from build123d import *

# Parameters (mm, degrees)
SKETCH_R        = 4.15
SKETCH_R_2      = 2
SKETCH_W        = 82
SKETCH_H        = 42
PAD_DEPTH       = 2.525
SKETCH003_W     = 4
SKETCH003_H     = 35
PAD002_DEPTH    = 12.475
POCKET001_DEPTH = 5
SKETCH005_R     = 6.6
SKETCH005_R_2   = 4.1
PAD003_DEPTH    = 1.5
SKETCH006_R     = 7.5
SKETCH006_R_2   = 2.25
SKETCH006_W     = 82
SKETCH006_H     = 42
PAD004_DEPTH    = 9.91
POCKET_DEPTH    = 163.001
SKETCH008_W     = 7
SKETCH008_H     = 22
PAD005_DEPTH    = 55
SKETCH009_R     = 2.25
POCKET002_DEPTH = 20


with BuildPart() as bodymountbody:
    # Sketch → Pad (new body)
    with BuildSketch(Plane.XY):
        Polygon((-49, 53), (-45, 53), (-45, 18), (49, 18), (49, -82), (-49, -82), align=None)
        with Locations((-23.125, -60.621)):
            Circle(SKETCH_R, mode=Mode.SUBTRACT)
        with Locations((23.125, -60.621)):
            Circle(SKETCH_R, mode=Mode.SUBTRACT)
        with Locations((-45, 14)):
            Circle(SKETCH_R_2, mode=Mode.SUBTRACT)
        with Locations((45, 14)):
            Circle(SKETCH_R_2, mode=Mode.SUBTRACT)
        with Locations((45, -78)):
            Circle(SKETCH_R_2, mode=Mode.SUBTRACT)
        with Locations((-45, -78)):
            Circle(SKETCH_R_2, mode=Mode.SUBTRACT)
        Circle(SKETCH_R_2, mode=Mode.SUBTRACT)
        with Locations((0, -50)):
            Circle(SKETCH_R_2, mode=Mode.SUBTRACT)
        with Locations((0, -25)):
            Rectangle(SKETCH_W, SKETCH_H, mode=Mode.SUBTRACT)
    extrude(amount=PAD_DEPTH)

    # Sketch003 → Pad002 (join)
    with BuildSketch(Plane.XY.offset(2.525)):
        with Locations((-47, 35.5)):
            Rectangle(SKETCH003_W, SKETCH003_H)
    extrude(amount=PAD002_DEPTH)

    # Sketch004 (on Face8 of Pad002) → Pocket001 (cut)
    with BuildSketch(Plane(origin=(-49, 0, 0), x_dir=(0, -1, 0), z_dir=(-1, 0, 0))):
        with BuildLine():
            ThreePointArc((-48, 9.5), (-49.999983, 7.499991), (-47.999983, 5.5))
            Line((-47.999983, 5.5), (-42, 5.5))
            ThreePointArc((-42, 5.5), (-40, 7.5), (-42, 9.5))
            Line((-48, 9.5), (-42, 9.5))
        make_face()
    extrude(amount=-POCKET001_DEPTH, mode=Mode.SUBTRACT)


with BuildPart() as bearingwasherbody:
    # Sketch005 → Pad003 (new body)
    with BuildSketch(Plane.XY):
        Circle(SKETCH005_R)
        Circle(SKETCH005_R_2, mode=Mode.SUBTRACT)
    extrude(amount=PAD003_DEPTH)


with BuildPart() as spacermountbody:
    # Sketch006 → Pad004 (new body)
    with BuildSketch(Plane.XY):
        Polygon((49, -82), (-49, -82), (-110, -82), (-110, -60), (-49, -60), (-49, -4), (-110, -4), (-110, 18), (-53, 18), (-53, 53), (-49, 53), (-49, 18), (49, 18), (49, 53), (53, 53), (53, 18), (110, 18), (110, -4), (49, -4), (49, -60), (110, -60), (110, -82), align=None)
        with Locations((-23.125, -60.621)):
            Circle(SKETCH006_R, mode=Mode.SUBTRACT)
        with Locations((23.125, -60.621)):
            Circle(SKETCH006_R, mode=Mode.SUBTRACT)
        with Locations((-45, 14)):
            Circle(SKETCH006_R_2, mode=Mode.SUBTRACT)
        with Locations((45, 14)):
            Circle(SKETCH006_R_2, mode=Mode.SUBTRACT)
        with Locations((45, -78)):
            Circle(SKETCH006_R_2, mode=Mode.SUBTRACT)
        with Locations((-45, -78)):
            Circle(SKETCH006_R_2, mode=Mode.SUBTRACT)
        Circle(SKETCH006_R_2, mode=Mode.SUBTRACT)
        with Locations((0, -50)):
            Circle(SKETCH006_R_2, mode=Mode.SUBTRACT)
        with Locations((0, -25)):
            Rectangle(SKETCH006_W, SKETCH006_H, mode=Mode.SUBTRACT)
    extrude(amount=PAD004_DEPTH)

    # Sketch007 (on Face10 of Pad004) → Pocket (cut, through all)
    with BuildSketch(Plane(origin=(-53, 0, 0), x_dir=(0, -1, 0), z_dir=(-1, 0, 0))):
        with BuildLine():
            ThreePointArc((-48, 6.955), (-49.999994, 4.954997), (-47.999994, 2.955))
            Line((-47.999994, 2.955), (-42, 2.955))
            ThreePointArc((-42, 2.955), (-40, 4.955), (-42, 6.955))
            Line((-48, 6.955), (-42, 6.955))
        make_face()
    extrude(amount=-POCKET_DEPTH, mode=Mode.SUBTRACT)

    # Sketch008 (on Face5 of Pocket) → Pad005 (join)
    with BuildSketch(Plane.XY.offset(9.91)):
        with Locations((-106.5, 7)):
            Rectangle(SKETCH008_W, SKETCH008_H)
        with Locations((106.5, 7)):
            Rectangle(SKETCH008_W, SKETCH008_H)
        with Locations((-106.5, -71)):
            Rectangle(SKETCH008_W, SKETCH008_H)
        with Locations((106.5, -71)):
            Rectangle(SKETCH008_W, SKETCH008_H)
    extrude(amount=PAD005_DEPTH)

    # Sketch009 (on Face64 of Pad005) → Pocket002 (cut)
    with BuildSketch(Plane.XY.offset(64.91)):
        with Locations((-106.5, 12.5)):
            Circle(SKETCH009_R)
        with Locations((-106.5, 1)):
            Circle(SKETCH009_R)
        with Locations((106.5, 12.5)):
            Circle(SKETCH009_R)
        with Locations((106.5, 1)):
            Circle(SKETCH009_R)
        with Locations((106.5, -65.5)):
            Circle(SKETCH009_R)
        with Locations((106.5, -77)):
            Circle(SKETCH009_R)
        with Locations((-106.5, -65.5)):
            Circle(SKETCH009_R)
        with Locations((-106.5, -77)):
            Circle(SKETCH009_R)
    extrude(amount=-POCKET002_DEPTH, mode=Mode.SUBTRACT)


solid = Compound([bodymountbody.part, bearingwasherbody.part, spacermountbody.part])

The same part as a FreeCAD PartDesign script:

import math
import FreeCAD as App
import Part
import Sketcher

V = App.Vector


def add_polygon(sketch, points):
    """Adds a closed chain of lines whose ends are joined by coincident constraints."""
    first, n = sketch.GeometryCount, len(points)
    for a, b in zip(points, points[1:] + points[:1]):
        sketch.addGeometry(Part.LineSegment(App.Vector(*a, 0), App.Vector(*b, 0)), False)
    for i in range(n):
        sketch.addConstraint(Sketcher.Constraint("Coincident", first + i, 2, first + (i + 1) % n, 1))

doc = App.newDocument("Part")
body = doc.addObject("PartDesign::Body", "Body")

sketch1 = body.newObject("Sketcher::SketchObject", "Sketch")
sketch1.AttachmentSupport = (doc.getObject("XY_Plane"), [""])
sketch1.MapMode = "FlatFace"
add_polygon(sketch1, [(-45, 53), (-49, 53), (-49, -82), (49, -82), (49, 18), (-45, 18)])
sketch1.addGeometry(Part.Circle(V(45, -78, 0), V(0, 0, 1), 2), False)
sketch1.addGeometry(Part.Circle(V(23.1, -60.6, 0), V(0, 0, 1), 4.2), False)
sketch1.addGeometry(Part.Circle(V(-23.1, -60.6, 0), V(0, 0, 1), 4.2), False)
sketch1.addGeometry(Part.Circle(V(-45, -78, 0), V(0, 0, 1), 2), False)
sketch1.addGeometry(Part.Circle(V(0, -50, 0), V(0, 0, 1), 2), False)
sketch1.addGeometry(Part.Circle(V(45, 14, 0), V(0, 0, 1), 2), False)
add_polygon(sketch1, [(-41, -46), (-41, -4), (41, -4), (41, -46)])
sketch1.addGeometry(Part.Circle(V(0, 0, 0), V(0, 0, 1), 2), False)
sketch1.addGeometry(Part.Circle(V(-45, 14, 0), V(0, 0, 1), 2), False)
sketch1.addConstraint(Sketcher.Constraint("Horizontal", 0))
sketch1.addConstraint(Sketcher.Constraint("Vertical", 1))
sketch1.addConstraint(Sketcher.Constraint("Horizontal", 2))
sketch1.addConstraint(Sketcher.Constraint("Vertical", 3))
sketch1.addConstraint(Sketcher.Constraint("Horizontal", 4))
sketch1.addConstraint(Sketcher.Constraint("Vertical", 5))
sketch1.addConstraint(Sketcher.Constraint("Vertical", 12))
sketch1.addConstraint(Sketcher.Constraint("Horizontal", 13))
sketch1.addConstraint(Sketcher.Constraint("Vertical", 14))
sketch1.addConstraint(Sketcher.Constraint("Horizontal", 15))
sketch1.addConstraint(Sketcher.Constraint("Coincident", 16, 3, -1, 1))
sketch1.addConstraint(Sketcher.Constraint("Equal", 7, 8))
sketch1.addConstraint(Sketcher.Constraint("Equal", 6, 9))
sketch1.addConstraint(Sketcher.Constraint("Equal", 9, 10))
sketch1.addConstraint(Sketcher.Constraint("Equal", 10, 11))
sketch1.addConstraint(Sketcher.Constraint("Equal", 11, 16))
sketch1.addConstraint(Sketcher.Constraint("Equal", 16, 17))
sketch1.addConstraint(Sketcher.Constraint("Symmetric", 7, 3, 8, 3, -2))
sketch1.addConstraint(Sketcher.Constraint("Symmetric", 6, 3, 9, 3, -2))
sketch1.addConstraint(Sketcher.Constraint("Symmetric", 11, 3, 17, 3, -2))
sketch1.addConstraint(Sketcher.Constraint("PointOnObject", 10, 3, -2))
sketch1.addConstraint(Sketcher.Constraint("Vertical", 6, 3, 11, 3))
sketch1.addConstraint(Sketcher.Constraint("Vertical", 17, 3, 4, 2))
sketch1.addConstraint(Sketcher.Constraint("Diameter", 6, 4.0))
sketch1.addConstraint(Sketcher.Constraint("Diameter", 7, 8.3))
sketch1.addConstraint(Sketcher.Constraint("DistanceX", 0, 2, 0, 1, 4.0))
sketch1.addConstraint(Sketcher.Constraint("DistanceX", 2, 1, 2, 2, 98.0))
sketch1.addConstraint(Sketcher.Constraint("DistanceX", 13, 1, 13, 2, 82.0))
sketch1.addConstraint(Sketcher.Constraint("DistanceY", 1, 2, 1, 1, 135.0))
sketch1.addConstraint(Sketcher.Constraint("DistanceY", 3, 1, 3, 2, 100.0))
sketch1.addConstraint(Sketcher.Constraint("DistanceY", 12, 1, 12, 2, 42.0))
sketch1.addConstraint(Sketcher.Constraint("DistanceX", -1, 1, 6, 3, 45.0))
sketch1.addConstraint(Sketcher.Constraint("DistanceY", 6, 3, -1, 1, 78.0))
sketch1.addConstraint(Sketcher.Constraint("DistanceY", 10, 3, -1, 1, 50.0))
sketch1.addConstraint(Sketcher.Constraint("DistanceY", -1, 1, 11, 3, 14.0))
sketch1.addConstraint(Sketcher.Constraint("DistanceY", -1, 1, 0, 2, 53.0))
sketch1.addConstraint(Sketcher.Constraint("DistanceX", 12, 2, -1, 1, 41.0))
sketch1.addConstraint(Sketcher.Constraint("DistanceY", 12, 2, -1, 1, 4.0))
sketch1.addConstraint(Sketcher.Constraint("DistanceX", 8, 3, 7, 3, 46.25))
sketch1.addConstraint(Sketcher.Constraint("DistanceY", 7, 3, -1, 1, 60.621))
pad1 = body.newObject("PartDesign::Pad", "Pad")
pad1.Profile = sketch1
pad1.Length = 2.525

sketch2 = body.newObject("Sketcher::SketchObject", "Sketch001")
sketch2.AttachmentSupport = (doc.getObject("XY_Plane"), [""])
sketch2.MapMode = "FlatFace"
sketch2.AttachmentOffset = App.Placement(V(0, 0, 2.525), App.Rotation())
add_polygon(sketch2, [(-49, 53), (-49, 18), (-45, 18), (-45, 53)])
sketch2.addConstraint(Sketcher.Constraint("Vertical", 0))
sketch2.addConstraint(Sketcher.Constraint("Horizontal", 1))
sketch2.addConstraint(Sketcher.Constraint("Vertical", 2))
sketch2.addConstraint(Sketcher.Constraint("Horizontal", 3))
sketch2.addConstraint(Sketcher.Constraint("DistanceX", 1, 1, 1, 2, 4.0))
sketch2.addConstraint(Sketcher.Constraint("DistanceY", 0, 2, 0, 1, 35.0))
sketch2.addConstraint(Sketcher.Constraint("DistanceX", 0, 2, -1, 1, 49.0))
sketch2.addConstraint(Sketcher.Constraint("DistanceY", -1, 1, 0, 2, 18.0))
pad2 = body.newObject("PartDesign::Pad", "Pad001")
pad2.Profile = sketch2
pad2.Length = 12.475

sketch3 = body.newObject("Sketcher::SketchObject", "Sketch002")
sketch3.AttachmentSupport = (doc.getObject("YZ_Plane"), [""])
sketch3.MapMode = "FlatFace"
sketch3.AttachmentOffset = App.Placement(V(0, 0, -49), App.Rotation())
sketch3.addGeometry(Part.ArcOfCircle(Part.Circle(V(48, 7.5, 0), V(0, 0, 1), 2), math.radians(-90), math.radians(90)), False)
sketch3.addGeometry(Part.LineSegment(V(48, 5.5, 0), V(42, 5.5, 0)), False)
sketch3.addGeometry(Part.ArcOfCircle(Part.Circle(V(42, 7.5, 0), V(0, 0, 1), 2), math.radians(90), math.radians(270)), False)
sketch3.addGeometry(Part.LineSegment(V(42, 9.5, 0), V(48, 9.5, 0)), False)
sketch3.addConstraint(Sketcher.Constraint("Tangent", 0, 1, 1, 1))
sketch3.addConstraint(Sketcher.Constraint("Tangent", 1, 2, 2, 2))
sketch3.addConstraint(Sketcher.Constraint("Tangent", 2, 1, 3, 1))
sketch3.addConstraint(Sketcher.Constraint("Coincident", 3, 2, 0, 2))
sketch3.addConstraint(Sketcher.Constraint("Horizontal", 1))
sketch3.addConstraint(Sketcher.Constraint("Horizontal", 3))
sketch3.addConstraint(Sketcher.Constraint("Radius", 0, 2.0))
sketch3.addConstraint(Sketcher.Constraint("DistanceX", 3, 1, 3, 2, 6.0))
sketch3.addConstraint(Sketcher.Constraint("DistanceX", -1, 1, 2, 3, 42.0))
sketch3.addConstraint(Sketcher.Constraint("DistanceY", -1, 1, 0, 3, 7.5))
sketch3.addConstraint(Sketcher.Constraint("DistanceX", 1, 2, 1, 1, 5.999983))
pocket1 = body.newObject("PartDesign::Pocket", "Pocket")
pocket1.Profile = sketch3
pocket1.Length = 5
pocket1.Reversed = True
body2 = doc.addObject("PartDesign::Body", "Body001")

sketch4 = body2.newObject("Sketcher::SketchObject", "Sketch003")
sketch4.AttachmentSupport = (doc.getObject("XY_Plane001"), [""])
sketch4.MapMode = "FlatFace"
sketch4.addGeometry(Part.Circle(V(0, 0, 0), V(0, 0, 1), 6.6), False)
sketch4.addGeometry(Part.Circle(V(0, 0, 0), V(0, 0, 1), 4.1), False)
sketch4.addConstraint(Sketcher.Constraint("Coincident", 0, 3, -1, 1))
sketch4.addConstraint(Sketcher.Constraint("Coincident", 1, 3, -1, 1))
sketch4.addConstraint(Sketcher.Constraint("Diameter", 0, 13.2))
sketch4.addConstraint(Sketcher.Constraint("Diameter", 1, 8.2))
pad3 = body2.newObject("PartDesign::Pad", "Pad002")
pad3.Profile = sketch4
pad3.Length = 1.5
body3 = doc.addObject("PartDesign::Body", "Body002")

sketch5 = body3.newObject("Sketcher::SketchObject", "Sketch004")
sketch5.AttachmentSupport = (doc.getObject("XY_Plane002"), [""])
sketch5.MapMode = "FlatFace"
add_polygon(sketch5, [(-110, -82), (110, -82), (110, -60), (49, -60), (49, -4), (110, -4), (110, 18), (53, 18), (53, 53), (49, 53), (49, 18), (-49, 18), (-49, 53), (-53, 53), (-53, 18), (-110, 18), (-110, -4), (-49, -4), (-49, -60), (-110, -60)])
sketch5.addGeometry(Part.Circle(V(45, -78, 0), V(0, 0, 1), 2.2), False)
sketch5.addGeometry(Part.Circle(V(23.1, -60.6, 0), V(0, 0, 1), 7.5), False)
sketch5.addGeometry(Part.Circle(V(-23.1, -60.6, 0), V(0, 0, 1), 7.5), False)
sketch5.addGeometry(Part.Circle(V(-45, -78, 0), V(0, 0, 1), 2.2), False)
sketch5.addGeometry(Part.Circle(V(0, -50, 0), V(0, 0, 1), 2.2), False)
sketch5.addGeometry(Part.Circle(V(45, 14, 0), V(0, 0, 1), 2.2), False)
add_polygon(sketch5, [(-41, -46), (-41, -4), (41, -4), (41, -46)])
sketch5.addGeometry(Part.Circle(V(0, 0, 0), V(0, 0, 1), 2.2), False)
sketch5.addGeometry(Part.Circle(V(-45, 14, 0), V(0, 0, 1), 2.2), False)
sketch5.addConstraint(Sketcher.Constraint("Horizontal", 0))
sketch5.addConstraint(Sketcher.Constraint("Vertical", 1))
sketch5.addConstraint(Sketcher.Constraint("Horizontal", 2))
sketch5.addConstraint(Sketcher.Constraint("Vertical", 3))
sketch5.addConstraint(Sketcher.Constraint("Horizontal", 4))
sketch5.addConstraint(Sketcher.Constraint("Vertical", 5))
sketch5.addConstraint(Sketcher.Constraint("Horizontal", 6))
sketch5.addConstraint(Sketcher.Constraint("Vertical", 7))
sketch5.addConstraint(Sketcher.Constraint("Horizontal", 8))
sketch5.addConstraint(Sketcher.Constraint("Vertical", 9))
sketch5.addConstraint(Sketcher.Constraint("Horizontal", 10))
sketch5.addConstraint(Sketcher.Constraint("Vertical", 11))
sketch5.addConstraint(Sketcher.Constraint("Horizontal", 12))
sketch5.addConstraint(Sketcher.Constraint("Vertical", 13))
sketch5.addConstraint(Sketcher.Constraint("Horizontal", 14))
sketch5.addConstraint(Sketcher.Constraint("Vertical", 15))
sketch5.addConstraint(Sketcher.Constraint("Horizontal", 16))
sketch5.addConstraint(Sketcher.Constraint("Vertical", 17))
sketch5.addConstraint(Sketcher.Constraint("Horizontal", 18))
sketch5.addConstraint(Sketcher.Constraint("Vertical", 19))
sketch5.addConstraint(Sketcher.Constraint("Vertical", 26))
sketch5.addConstraint(Sketcher.Constraint("Horizontal", 27))
sketch5.addConstraint(Sketcher.Constraint("Vertical", 28))
sketch5.addConstraint(Sketcher.Constraint("Horizontal", 29))
sketch5.addConstraint(Sketcher.Constraint("Coincident", 30, 3, -1, 1))
sketch5.addConstraint(Sketcher.Constraint("Equal", 21, 22))
sketch5.addConstraint(Sketcher.Constraint("Equal", 20, 23))
sketch5.addConstraint(Sketcher.Constraint("Equal", 23, 24))
sketch5.addConstraint(Sketcher.Constraint("Equal", 24, 25))
sketch5.addConstraint(Sketcher.Constraint("Equal", 25, 30))
sketch5.addConstraint(Sketcher.Constraint("Equal", 30, 31))
sketch5.addConstraint(Sketcher.Constraint("Symmetric", 21, 3, 22, 3, -2))
sketch5.addConstraint(Sketcher.Constraint("Symmetric", 20, 3, 23, 3, -2))
sketch5.addConstraint(Sketcher.Constraint("Symmetric", 25, 3, 31, 3, -2))
sketch5.addConstraint(Sketcher.Constraint("Symmetric", 8, 2, 11, 2, -2))
sketch5.addConstraint(Sketcher.Constraint("Symmetric", 6, 2, 13, 2, -2))
sketch5.addConstraint(Sketcher.Constraint("Symmetric", 4, 2, 15, 2, -2))
sketch5.addConstraint(Sketcher.Constraint("Symmetric", 2, 2, 17, 2, -2))
sketch5.addConstraint(Sketcher.Constraint("PointOnObject", 24, 3, -2))
sketch5.addConstraint(Sketcher.Constraint("Horizontal", 6, 2, 9, 2))
sketch5.addConstraint(Sketcher.Constraint("Horizontal", 16, 2, 26, 2))
sketch5.addConstraint(Sketcher.Constraint("Vertical", 20, 3, 25, 3))
sketch5.addConstraint(Sketcher.Constraint("Vertical", 1, 2, 4, 2))
sketch5.addConstraint(Sketcher.Constraint("Vertical", 3, 2, 8, 2))
sketch5.addConstraint(Sketcher.Constraint("Vertical", 15, 2, 18, 2))
sketch5.addConstraint(Sketcher.Constraint("Equal", 1, 5))
sketch5.addConstraint(Sketcher.Constraint("Diameter", 21, 15.0))
sketch5.addConstraint(Sketcher.Constraint("Diameter", 20, 4.5))
sketch5.addConstraint(Sketcher.Constraint("DistanceX", 0, 1, 0, 2, 220.0))
sketch5.addConstraint(Sketcher.Constraint("DistanceX", 2, 2, 2, 1, 61.0))
sketch5.addConstraint(Sketcher.Constraint("DistanceX", 6, 2, 6, 1, 57.0))
sketch5.addConstraint(Sketcher.Constraint("DistanceX", 27, 1, 27, 2, 82.0))
sketch5.addConstraint(Sketcher.Constraint("DistanceY", 1, 1, 1, 2, 22.0))
sketch5.addConstraint(Sketcher.Constraint("DistanceY", 3, 1, 3, 2, 56.0))
sketch5.addConstraint(Sketcher.Constraint("DistanceY", 7, 1, 7, 2, 35.0))
sketch5.addConstraint(Sketcher.Constraint("DistanceY", 26, 1, 26, 2, 42.0))
sketch5.addConstraint(Sketcher.Constraint("DistanceX", -1, 1, 20, 3, 45.0))
sketch5.addConstraint(Sketcher.Constraint("DistanceY", 20, 3, -1, 1, 78.0))
sketch5.addConstraint(Sketcher.Constraint("DistanceY", 24, 3, -1, 1, 50.0))
sketch5.addConstraint(Sketcher.Constraint("DistanceY", -1, 1, 25, 3, 14.0))
sketch5.addConstraint(Sketcher.Constraint("DistanceY", 0, 2, -1, 1, 82.0))
sketch5.addConstraint(Sketcher.Constraint("DistanceX", 26, 2, -1, 1, 41.0))
sketch5.addConstraint(Sketcher.Constraint("DistanceX", 22, 3, 21, 3, 46.25))
sketch5.addConstraint(Sketcher.Constraint("DistanceY", 21, 3, -1, 1, 60.621))
pad4 = body3.newObject("PartDesign::Pad", "Pad003")
pad4.Profile = sketch5
pad4.Length = 9.91

sketch6 = body3.newObject("Sketcher::SketchObject", "Sketch005")
sketch6.AttachmentSupport = (doc.getObject("YZ_Plane002"), [""])
sketch6.MapMode = "FlatFace"
sketch6.AttachmentOffset = App.Placement(V(0, 0, -53), App.Rotation())
sketch6.addGeometry(Part.ArcOfCircle(Part.Circle(V(48, 5, 0), V(0, 0, 1), 2), math.radians(-90), math.radians(90)), False)
sketch6.addGeometry(Part.LineSegment(V(48, 3, 0), V(42, 3, 0)), False)
sketch6.addGeometry(Part.ArcOfCircle(Part.Circle(V(42, 5, 0), V(0, 0, 1), 2), math.radians(90), math.radians(270)), False)
sketch6.addGeometry(Part.LineSegment(V(42, 7, 0), V(48, 7, 0)), False)
sketch6.addConstraint(Sketcher.Constraint("Tangent", 0, 1, 1, 1))
sketch6.addConstraint(Sketcher.Constraint("Tangent", 1, 2, 2, 2))
sketch6.addConstraint(Sketcher.Constraint("Tangent", 2, 1, 3, 1))
sketch6.addConstraint(Sketcher.Constraint("Coincident", 3, 2, 0, 2))
sketch6.addConstraint(Sketcher.Constraint("Horizontal", 1))
sketch6.addConstraint(Sketcher.Constraint("Horizontal", 3))
sketch6.addConstraint(Sketcher.Constraint("Radius", 0, 2.0))
sketch6.addConstraint(Sketcher.Constraint("DistanceX", 3, 1, 3, 2, 6.0))
sketch6.addConstraint(Sketcher.Constraint("DistanceX", -1, 1, 2, 3, 42.0))
sketch6.addConstraint(Sketcher.Constraint("DistanceY", -1, 1, 0, 3, 4.955))
sketch6.addConstraint(Sketcher.Constraint("DistanceX", 1, 2, 1, 1, 5.999994))
pocket2 = body3.newObject("PartDesign::Pocket", "Pocket001")
pocket2.Profile = sketch6
pocket2.Type = "ThroughAll"
pocket2.Reversed = True

sketch7 = body3.newObject("Sketcher::SketchObject", "Sketch006")
sketch7.AttachmentSupport = (doc.getObject("XY_Plane002"), [""])
sketch7.MapMode = "FlatFace"
sketch7.AttachmentOffset = App.Placement(V(0, 0, 9.91), App.Rotation())
add_polygon(sketch7, [(-110, 18), (-110, -4), (-103, -4), (-103, 18)])
add_polygon(sketch7, [(103, 18), (103, -4), (110, -4), (110, 18)])
add_polygon(sketch7, [(-110, -60), (-110, -82), (-103, -82), (-103, -60)])
add_polygon(sketch7, [(103, -60), (103, -82), (110, -82), (110, -60)])
sketch7.addConstraint(Sketcher.Constraint("Vertical", 0))
sketch7.addConstraint(Sketcher.Constraint("Horizontal", 1))
sketch7.addConstraint(Sketcher.Constraint("Vertical", 2))
sketch7.addConstraint(Sketcher.Constraint("Horizontal", 3))
sketch7.addConstraint(Sketcher.Constraint("Vertical", 4))
sketch7.addConstraint(Sketcher.Constraint("Horizontal", 5))
sketch7.addConstraint(Sketcher.Constraint("Vertical", 6))
sketch7.addConstraint(Sketcher.Constraint("Horizontal", 7))
sketch7.addConstraint(Sketcher.Constraint("Vertical", 8))
sketch7.addConstraint(Sketcher.Constraint("Horizontal", 9))
sketch7.addConstraint(Sketcher.Constraint("Vertical", 10))
sketch7.addConstraint(Sketcher.Constraint("Horizontal", 11))
sketch7.addConstraint(Sketcher.Constraint("Vertical", 12))
sketch7.addConstraint(Sketcher.Constraint("Horizontal", 13))
sketch7.addConstraint(Sketcher.Constraint("Vertical", 14))
sketch7.addConstraint(Sketcher.Constraint("Horizontal", 15))
sketch7.addConstraint(Sketcher.Constraint("Symmetric", 1, 2, 4, 2, -2))
sketch7.addConstraint(Sketcher.Constraint("Symmetric", 3, 2, 6, 2, -2))
sketch7.addConstraint(Sketcher.Constraint("Symmetric", 9, 2, 12, 2, -2))
sketch7.addConstraint(Sketcher.Constraint("Symmetric", 11, 2, 14, 2, -2))
sketch7.addConstraint(Sketcher.Constraint("Vertical", 3, 2, 8, 2))
sketch7.addConstraint(Sketcher.Constraint("Vertical", 2, 2, 9, 2))
sketch7.addConstraint(Sketcher.Constraint("Equal", 6, 8))
sketch7.addConstraint(Sketcher.Constraint("DistanceX", 1, 1, 1, 2, 7.0))
sketch7.addConstraint(Sketcher.Constraint("DistanceY", 0, 2, 0, 1, 22.0))
sketch7.addConstraint(Sketcher.Constraint("DistanceX", 0, 2, -1, 1, 110.0))
sketch7.addConstraint(Sketcher.Constraint("DistanceY", 0, 2, -1, 1, 4.0))
sketch7.addConstraint(Sketcher.Constraint("DistanceY", 8, 2, -1, 1, 82.0))
pad5 = body3.newObject("PartDesign::Pad", "Pad004")
pad5.Profile = sketch7
pad5.Length = 55

sketch8 = body3.newObject("Sketcher::SketchObject", "Sketch007")
sketch8.AttachmentSupport = (doc.getObject("XY_Plane002"), [""])
sketch8.MapMode = "FlatFace"
sketch8.AttachmentOffset = App.Placement(V(0, 0, 64.91), App.Rotation())
sketch8.addGeometry(Part.Circle(V(-106.5, 12.5, 0), V(0, 0, 1), 2.2), False)
sketch8.addGeometry(Part.Circle(V(-106.5, 1, 0), V(0, 0, 1), 2.2), False)
sketch8.addGeometry(Part.Circle(V(106.5, 12.5, 0), V(0, 0, 1), 2.2), False)
sketch8.addGeometry(Part.Circle(V(106.5, 1, 0), V(0, 0, 1), 2.2), False)
sketch8.addGeometry(Part.Circle(V(106.5, -65.5, 0), V(0, 0, 1), 2.2), False)
sketch8.addGeometry(Part.Circle(V(106.5, -77, 0), V(0, 0, 1), 2.2), False)
sketch8.addGeometry(Part.Circle(V(-106.5, -65.5, 0), V(0, 0, 1), 2.2), False)
sketch8.addGeometry(Part.Circle(V(-106.5, -77, 0), V(0, 0, 1), 2.2), False)
sketch8.addConstraint(Sketcher.Constraint("Equal", 0, 1))
sketch8.addConstraint(Sketcher.Constraint("Equal", 1, 2))
sketch8.addConstraint(Sketcher.Constraint("Equal", 2, 3))
sketch8.addConstraint(Sketcher.Constraint("Equal", 3, 4))
sketch8.addConstraint(Sketcher.Constraint("Equal", 4, 5))
sketch8.addConstraint(Sketcher.Constraint("Equal", 5, 6))
sketch8.addConstraint(Sketcher.Constraint("Equal", 6, 7))
sketch8.addConstraint(Sketcher.Constraint("Symmetric", 0, 3, 2, 3, -2))
sketch8.addConstraint(Sketcher.Constraint("Symmetric", 1, 3, 3, 3, -2))
sketch8.addConstraint(Sketcher.Constraint("Symmetric", 4, 3, 6, 3, -2))
sketch8.addConstraint(Sketcher.Constraint("Symmetric", 5, 3, 7, 3, -2))
sketch8.addConstraint(Sketcher.Constraint("Vertical", 0, 3, 1, 3))
sketch8.addConstraint(Sketcher.Constraint("Vertical", 3, 3, 4, 3))
sketch8.addConstraint(Sketcher.Constraint("Vertical", 4, 3, 5, 3))
sketch8.addConstraint(Sketcher.Constraint("Diameter", 0, 4.5))
sketch8.addConstraint(Sketcher.Constraint("DistanceY", -1, 1, 1, 3, 1.0))
sketch8.addConstraint(Sketcher.Constraint("DistanceY", 5, 3, -1, 1, 77.0))
sketch8.addConstraint(Sketcher.Constraint("DistanceX", 0, 3, 2, 3, 213.0))
sketch8.addConstraint(Sketcher.Constraint("DistanceY", 4, 3, 2, 3, 78.0))
sketch8.addConstraint(Sketcher.Constraint("DistanceY", -1, 1, 0, 3, 12.5))
pocket3 = body3.newObject("PartDesign::Pocket", "Pocket002")
pocket3.Profile = sketch8
pocket3.Length = 20

doc.recompute()
